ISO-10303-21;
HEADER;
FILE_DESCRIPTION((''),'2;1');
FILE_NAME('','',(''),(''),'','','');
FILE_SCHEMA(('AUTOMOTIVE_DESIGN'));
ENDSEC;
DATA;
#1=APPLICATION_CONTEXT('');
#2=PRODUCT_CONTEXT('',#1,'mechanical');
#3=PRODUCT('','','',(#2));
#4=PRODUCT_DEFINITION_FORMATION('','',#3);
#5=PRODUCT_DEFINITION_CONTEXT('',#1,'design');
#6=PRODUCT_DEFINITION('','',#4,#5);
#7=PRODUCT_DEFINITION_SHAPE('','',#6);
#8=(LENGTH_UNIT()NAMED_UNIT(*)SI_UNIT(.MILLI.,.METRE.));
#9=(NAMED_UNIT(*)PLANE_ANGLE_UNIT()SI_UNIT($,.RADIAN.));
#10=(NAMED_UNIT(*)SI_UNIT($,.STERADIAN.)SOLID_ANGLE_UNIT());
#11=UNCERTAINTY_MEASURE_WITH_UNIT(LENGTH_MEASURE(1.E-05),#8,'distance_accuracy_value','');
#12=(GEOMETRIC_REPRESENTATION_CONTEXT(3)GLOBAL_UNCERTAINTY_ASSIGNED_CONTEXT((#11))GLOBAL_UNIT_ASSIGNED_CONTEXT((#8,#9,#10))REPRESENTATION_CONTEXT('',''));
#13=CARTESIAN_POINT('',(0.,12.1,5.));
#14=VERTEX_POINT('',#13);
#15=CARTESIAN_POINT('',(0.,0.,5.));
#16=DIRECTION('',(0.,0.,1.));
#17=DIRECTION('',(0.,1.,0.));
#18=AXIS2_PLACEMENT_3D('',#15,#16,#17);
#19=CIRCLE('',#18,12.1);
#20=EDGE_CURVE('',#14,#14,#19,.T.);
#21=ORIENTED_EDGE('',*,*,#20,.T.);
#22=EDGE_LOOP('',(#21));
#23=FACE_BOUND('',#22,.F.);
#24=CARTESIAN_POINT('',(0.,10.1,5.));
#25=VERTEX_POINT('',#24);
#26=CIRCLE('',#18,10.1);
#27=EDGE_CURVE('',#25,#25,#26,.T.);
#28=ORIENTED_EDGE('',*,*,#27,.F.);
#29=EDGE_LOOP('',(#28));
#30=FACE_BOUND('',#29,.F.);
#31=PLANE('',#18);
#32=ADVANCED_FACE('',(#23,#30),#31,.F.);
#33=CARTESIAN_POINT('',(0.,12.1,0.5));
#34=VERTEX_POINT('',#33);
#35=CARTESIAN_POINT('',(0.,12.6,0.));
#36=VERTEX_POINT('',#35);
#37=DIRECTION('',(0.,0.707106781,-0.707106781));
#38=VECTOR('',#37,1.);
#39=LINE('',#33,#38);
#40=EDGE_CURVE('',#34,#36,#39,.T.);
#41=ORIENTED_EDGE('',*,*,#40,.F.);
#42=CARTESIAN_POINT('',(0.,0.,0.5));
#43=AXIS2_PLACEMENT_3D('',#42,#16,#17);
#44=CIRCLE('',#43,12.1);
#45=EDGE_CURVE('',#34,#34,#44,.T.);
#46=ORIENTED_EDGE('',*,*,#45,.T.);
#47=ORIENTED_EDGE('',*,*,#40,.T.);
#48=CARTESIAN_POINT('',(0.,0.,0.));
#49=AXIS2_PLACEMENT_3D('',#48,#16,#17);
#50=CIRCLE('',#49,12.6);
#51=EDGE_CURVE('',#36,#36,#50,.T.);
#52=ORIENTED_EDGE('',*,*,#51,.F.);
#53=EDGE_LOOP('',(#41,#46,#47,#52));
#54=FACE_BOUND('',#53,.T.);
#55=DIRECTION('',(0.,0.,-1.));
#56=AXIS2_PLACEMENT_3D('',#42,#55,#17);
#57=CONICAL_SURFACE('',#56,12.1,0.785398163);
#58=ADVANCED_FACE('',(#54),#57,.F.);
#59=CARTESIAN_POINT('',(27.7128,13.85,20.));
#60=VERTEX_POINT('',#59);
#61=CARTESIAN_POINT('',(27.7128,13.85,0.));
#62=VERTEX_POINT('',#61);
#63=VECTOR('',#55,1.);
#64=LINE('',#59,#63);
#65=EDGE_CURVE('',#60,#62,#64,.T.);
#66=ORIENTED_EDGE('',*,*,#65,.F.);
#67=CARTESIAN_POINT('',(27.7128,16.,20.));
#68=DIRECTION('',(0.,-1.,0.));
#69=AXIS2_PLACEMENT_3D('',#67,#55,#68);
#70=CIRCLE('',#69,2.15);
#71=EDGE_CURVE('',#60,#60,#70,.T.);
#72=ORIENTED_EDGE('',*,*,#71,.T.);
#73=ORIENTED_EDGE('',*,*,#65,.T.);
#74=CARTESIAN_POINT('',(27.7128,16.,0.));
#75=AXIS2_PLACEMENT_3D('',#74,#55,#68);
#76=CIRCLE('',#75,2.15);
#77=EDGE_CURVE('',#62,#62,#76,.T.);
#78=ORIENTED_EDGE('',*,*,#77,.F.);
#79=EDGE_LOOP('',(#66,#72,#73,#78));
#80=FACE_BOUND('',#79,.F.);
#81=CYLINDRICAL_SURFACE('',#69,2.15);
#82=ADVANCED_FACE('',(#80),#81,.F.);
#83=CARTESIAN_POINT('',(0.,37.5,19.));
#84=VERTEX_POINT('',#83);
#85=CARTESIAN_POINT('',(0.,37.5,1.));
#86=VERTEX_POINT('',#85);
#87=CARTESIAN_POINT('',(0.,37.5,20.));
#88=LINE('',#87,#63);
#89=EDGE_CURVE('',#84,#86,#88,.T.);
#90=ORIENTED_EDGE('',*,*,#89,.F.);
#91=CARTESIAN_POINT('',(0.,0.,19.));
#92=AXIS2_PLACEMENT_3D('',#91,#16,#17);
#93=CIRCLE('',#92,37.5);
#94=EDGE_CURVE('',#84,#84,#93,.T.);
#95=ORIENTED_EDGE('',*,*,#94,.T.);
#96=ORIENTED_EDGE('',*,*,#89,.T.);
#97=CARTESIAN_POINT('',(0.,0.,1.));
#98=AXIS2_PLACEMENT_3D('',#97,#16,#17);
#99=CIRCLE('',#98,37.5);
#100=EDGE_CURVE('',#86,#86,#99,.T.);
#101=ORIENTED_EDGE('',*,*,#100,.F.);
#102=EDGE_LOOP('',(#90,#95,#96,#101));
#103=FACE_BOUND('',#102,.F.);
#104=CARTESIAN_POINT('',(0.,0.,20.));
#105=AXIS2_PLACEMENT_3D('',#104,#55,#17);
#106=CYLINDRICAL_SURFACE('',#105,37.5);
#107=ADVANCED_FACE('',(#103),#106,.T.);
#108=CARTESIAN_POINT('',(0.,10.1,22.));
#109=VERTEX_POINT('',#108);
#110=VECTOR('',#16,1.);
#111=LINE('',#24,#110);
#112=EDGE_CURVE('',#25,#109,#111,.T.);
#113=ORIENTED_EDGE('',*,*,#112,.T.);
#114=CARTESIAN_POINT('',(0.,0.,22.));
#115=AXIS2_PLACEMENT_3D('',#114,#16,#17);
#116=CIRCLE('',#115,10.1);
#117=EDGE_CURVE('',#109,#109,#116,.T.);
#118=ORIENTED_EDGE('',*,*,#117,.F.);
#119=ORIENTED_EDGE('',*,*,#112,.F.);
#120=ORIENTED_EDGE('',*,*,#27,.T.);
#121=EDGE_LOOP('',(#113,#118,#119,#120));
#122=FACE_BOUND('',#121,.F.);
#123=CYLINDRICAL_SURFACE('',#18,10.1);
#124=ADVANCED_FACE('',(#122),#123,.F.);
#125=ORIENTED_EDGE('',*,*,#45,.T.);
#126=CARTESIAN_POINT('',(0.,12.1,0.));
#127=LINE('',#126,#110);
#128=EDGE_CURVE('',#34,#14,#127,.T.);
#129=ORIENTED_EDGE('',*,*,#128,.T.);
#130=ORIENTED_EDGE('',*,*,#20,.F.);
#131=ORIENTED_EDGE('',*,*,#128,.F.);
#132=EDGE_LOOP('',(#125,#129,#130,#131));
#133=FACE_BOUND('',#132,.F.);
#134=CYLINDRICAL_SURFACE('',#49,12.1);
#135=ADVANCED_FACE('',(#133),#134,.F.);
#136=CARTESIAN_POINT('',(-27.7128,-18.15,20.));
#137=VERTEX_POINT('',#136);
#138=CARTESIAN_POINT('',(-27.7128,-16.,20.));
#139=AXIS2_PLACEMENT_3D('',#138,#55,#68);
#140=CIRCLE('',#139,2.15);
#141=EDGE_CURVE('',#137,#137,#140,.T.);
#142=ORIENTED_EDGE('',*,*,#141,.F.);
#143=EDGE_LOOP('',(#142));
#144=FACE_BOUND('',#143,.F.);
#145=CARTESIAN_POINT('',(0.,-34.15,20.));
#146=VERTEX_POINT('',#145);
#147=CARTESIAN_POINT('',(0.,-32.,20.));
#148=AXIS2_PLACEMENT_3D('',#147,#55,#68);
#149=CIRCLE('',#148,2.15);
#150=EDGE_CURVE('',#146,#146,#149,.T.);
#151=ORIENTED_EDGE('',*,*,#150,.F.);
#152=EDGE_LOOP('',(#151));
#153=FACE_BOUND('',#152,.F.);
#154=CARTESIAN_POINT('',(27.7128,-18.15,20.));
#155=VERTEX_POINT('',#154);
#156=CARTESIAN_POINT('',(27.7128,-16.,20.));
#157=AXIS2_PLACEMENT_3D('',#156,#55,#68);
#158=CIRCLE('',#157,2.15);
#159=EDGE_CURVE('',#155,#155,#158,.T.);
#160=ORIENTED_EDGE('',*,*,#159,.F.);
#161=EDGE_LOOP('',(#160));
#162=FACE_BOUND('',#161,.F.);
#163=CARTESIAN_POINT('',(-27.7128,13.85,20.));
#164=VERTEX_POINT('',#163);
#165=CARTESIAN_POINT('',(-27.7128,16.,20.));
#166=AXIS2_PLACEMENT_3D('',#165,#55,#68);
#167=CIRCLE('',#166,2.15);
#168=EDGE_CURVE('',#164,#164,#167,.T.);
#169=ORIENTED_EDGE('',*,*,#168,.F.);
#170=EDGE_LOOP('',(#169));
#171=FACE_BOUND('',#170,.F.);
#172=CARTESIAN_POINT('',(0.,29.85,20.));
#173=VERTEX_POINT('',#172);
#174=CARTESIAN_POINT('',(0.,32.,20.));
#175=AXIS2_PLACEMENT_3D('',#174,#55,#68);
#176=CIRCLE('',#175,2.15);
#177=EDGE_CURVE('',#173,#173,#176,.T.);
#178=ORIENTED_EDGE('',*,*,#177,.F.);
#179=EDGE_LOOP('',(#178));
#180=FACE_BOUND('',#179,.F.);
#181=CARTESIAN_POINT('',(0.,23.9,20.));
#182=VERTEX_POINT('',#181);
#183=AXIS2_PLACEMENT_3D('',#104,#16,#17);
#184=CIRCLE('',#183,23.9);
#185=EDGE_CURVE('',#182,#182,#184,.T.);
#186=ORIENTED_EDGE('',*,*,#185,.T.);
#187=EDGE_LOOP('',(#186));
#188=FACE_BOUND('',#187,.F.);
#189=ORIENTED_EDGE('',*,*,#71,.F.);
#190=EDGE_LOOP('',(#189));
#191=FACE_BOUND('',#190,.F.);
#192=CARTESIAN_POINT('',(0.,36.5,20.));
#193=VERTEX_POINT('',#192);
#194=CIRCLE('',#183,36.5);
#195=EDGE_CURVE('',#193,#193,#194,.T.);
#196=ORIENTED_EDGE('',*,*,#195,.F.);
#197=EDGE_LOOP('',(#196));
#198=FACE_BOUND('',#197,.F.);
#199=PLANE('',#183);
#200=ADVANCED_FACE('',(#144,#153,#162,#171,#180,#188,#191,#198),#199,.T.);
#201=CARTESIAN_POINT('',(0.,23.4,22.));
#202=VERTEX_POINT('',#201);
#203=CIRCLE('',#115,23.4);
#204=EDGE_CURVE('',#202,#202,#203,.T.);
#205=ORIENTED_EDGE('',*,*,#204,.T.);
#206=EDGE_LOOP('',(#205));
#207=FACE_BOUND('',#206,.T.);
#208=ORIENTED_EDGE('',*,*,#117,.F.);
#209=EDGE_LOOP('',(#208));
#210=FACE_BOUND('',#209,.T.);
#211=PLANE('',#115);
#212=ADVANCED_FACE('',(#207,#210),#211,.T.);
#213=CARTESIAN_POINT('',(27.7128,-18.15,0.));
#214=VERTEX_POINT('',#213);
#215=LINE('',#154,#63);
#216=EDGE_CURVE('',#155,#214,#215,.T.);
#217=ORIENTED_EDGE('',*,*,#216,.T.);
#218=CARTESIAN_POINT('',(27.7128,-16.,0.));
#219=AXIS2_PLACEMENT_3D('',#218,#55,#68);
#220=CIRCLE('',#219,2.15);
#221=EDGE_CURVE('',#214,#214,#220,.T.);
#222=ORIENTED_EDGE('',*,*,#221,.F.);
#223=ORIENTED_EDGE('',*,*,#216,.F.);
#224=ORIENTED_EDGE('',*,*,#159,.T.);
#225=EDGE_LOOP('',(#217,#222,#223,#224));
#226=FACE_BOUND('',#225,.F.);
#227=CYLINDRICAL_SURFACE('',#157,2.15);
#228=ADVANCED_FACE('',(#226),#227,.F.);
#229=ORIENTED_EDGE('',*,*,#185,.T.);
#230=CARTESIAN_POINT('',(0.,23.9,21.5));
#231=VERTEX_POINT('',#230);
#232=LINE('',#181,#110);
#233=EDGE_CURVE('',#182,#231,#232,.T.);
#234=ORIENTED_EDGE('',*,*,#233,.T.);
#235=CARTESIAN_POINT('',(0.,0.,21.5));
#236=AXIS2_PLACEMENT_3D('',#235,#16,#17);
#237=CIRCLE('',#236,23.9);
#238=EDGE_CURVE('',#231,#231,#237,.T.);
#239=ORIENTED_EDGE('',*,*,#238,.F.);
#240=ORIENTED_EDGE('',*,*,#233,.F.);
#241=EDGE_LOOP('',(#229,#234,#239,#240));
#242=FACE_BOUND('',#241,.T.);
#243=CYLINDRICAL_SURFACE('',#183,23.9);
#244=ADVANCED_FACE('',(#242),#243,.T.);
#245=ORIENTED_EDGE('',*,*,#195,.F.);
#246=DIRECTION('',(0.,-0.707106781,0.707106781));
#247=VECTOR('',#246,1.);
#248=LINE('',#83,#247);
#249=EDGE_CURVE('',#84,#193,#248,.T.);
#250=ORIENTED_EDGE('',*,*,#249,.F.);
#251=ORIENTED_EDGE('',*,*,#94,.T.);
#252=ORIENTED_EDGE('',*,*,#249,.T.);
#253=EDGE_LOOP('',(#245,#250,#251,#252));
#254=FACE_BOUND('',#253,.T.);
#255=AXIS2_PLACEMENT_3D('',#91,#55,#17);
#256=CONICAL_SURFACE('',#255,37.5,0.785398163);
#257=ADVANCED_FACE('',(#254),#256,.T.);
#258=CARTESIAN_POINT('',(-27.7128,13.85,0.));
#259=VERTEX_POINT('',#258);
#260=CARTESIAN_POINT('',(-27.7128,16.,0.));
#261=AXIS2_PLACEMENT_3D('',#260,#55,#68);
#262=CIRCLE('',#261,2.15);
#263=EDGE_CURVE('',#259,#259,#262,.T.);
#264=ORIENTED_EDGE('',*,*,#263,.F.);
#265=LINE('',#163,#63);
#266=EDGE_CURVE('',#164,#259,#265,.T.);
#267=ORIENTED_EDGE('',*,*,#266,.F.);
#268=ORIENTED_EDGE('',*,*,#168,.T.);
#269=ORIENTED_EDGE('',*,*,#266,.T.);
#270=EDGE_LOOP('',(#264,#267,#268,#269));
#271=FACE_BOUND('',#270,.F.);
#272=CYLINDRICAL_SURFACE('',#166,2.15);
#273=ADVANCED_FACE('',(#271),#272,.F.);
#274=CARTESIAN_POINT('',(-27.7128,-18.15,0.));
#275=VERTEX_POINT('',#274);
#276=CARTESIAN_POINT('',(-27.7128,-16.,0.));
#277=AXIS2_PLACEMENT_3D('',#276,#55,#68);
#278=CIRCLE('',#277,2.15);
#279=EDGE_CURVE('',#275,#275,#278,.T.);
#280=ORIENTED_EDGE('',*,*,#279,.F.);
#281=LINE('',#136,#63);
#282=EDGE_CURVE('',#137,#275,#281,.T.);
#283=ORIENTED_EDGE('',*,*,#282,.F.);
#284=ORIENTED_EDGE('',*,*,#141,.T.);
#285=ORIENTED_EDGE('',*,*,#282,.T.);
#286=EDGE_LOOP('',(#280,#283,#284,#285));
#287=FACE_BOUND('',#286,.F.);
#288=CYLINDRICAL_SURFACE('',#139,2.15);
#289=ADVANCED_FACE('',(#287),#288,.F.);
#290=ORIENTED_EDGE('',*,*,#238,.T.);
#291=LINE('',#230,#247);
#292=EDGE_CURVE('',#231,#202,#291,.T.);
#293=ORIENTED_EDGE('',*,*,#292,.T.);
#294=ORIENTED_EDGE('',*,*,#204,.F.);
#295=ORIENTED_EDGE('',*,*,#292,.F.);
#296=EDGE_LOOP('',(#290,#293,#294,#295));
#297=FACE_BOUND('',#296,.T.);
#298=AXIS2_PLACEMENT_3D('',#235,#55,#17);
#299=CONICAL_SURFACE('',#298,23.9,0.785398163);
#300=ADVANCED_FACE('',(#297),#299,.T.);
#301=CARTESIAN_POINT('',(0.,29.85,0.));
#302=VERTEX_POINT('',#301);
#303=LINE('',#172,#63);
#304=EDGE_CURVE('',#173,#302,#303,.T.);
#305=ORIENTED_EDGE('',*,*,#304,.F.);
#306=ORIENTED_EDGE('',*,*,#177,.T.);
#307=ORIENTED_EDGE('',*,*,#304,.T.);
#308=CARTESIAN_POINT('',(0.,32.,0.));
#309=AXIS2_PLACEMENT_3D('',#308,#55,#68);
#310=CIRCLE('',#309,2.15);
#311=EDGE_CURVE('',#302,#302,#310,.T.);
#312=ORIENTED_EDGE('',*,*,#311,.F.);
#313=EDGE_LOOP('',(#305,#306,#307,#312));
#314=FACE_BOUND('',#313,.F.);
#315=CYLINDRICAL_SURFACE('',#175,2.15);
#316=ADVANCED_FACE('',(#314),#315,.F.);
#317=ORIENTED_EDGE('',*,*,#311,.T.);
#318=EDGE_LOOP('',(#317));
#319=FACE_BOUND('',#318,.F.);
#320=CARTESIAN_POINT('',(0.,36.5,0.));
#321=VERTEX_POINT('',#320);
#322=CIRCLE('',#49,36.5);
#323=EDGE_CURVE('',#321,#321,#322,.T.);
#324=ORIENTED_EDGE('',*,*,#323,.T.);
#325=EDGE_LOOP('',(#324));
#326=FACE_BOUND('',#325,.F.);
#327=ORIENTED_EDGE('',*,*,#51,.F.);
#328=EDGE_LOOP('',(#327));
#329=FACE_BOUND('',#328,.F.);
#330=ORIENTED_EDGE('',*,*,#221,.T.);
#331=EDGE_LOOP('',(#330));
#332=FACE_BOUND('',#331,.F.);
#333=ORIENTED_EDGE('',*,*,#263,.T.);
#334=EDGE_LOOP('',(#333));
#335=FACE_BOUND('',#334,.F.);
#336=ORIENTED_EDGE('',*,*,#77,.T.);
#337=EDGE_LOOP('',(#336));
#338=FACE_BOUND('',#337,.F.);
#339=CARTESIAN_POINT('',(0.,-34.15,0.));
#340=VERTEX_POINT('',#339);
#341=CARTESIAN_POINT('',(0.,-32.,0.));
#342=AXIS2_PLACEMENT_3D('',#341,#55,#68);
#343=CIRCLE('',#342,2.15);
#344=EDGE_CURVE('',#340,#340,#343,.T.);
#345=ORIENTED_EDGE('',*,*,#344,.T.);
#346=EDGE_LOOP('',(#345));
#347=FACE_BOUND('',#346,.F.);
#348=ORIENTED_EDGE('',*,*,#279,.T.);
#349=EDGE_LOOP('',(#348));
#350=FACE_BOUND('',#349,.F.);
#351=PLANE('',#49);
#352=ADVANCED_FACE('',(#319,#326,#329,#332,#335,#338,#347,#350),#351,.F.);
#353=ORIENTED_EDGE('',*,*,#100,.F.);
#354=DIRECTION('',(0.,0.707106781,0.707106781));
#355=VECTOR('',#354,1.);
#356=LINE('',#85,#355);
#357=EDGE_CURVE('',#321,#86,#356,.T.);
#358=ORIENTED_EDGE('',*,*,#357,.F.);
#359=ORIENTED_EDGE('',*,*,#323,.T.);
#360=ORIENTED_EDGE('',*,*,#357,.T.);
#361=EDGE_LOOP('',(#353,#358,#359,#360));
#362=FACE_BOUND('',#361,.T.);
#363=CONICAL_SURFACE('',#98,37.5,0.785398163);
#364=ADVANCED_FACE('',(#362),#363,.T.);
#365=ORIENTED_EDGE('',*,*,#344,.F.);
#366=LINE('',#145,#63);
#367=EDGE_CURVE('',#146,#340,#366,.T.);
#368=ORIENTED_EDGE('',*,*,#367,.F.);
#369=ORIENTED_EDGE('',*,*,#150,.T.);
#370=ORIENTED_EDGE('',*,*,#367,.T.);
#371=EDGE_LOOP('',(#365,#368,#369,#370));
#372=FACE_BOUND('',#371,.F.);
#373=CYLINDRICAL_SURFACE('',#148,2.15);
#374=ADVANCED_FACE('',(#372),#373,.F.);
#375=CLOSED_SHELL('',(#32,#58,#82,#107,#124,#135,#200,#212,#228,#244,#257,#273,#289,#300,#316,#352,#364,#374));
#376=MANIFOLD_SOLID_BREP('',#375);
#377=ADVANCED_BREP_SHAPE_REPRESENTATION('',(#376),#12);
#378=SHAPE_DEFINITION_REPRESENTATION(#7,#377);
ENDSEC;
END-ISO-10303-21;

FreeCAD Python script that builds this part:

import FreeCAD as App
import Part
import Sketcher
from FreeCAD import Vector


def edges_at(feature, points):
    """Names of the edges that pass closest to the given points."""
    edges = feature.Shape.Edges
    near = lambda p: min(range(len(edges)), key=lambda i: edges[i].distToShape(Part.Vertex(*p))[0])
    return sorted({f"Edge{near(p) + 1}" for p in points})

doc = App.newDocument("Part")
body = doc.addObject("PartDesign::Body", "Body")

# Sketch on YZ plane
sketch1 = body.newObject("Sketcher::SketchObject", "Sketch")
sketch1.AttachmentSupport = (doc.getObject("YZ_Plane"), [""])
sketch1.MapMode = "FlatFace"
sketch1.addGeometry([
    Part.LineSegment(Vector(12.1, 5, 0), Vector(12.1, 0, 0)),  # 0
    Part.LineSegment(Vector(12.1, 0, 0), Vector(37.5, 0, 0)),  # 1
    Part.LineSegment(Vector(37.5, 0, 0), Vector(37.5, 20, 0)),  # 2
    Part.LineSegment(Vector(37.5, 20, 0), Vector(23.9, 20, 0)),  # 3
    Part.LineSegment(Vector(23.9, 20, 0), Vector(23.9, 22, 0)),  # 4
    Part.LineSegment(Vector(23.9, 22, 0), Vector(10.1, 22, 0)),  # 5
    Part.LineSegment(Vector(10.1, 22, 0), Vector(10.1, 5, 0)),  # 6
    Part.LineSegment(Vector(10.1, 5, 0), Vector(12.1, 5, 0)),  # 7
], False)
sketch1.addConstraint([
    Sketcher.Constraint("Coincident", 0, 2, 1, 1),
    Sketcher.Constraint("Coincident", 1, 2, 2, 1),
    Sketcher.Constraint("Coincident", 2, 2, 3, 1),
    Sketcher.Constraint("Coincident", 3, 2, 4, 1),
    Sketcher.Constraint("Coincident", 4, 2, 5, 1),
    Sketcher.Constraint("Coincident", 5, 2, 6, 1),
    Sketcher.Constraint("Coincident", 6, 2, 7, 1),
    Sketcher.Constraint("Coincident", 7, 2, 0, 1),
    Sketcher.Constraint("Vertical", 0),
    Sketcher.Constraint("Horizontal", 1),
    Sketcher.Constraint("Vertical", 2),
    Sketcher.Constraint("Horizontal", 3),
    Sketcher.Constraint("Vertical", 4),
    Sketcher.Constraint("Horizontal", 5),
    Sketcher.Constraint("Vertical", 6),
    Sketcher.Constraint("Horizontal", 7),
    Sketcher.Constraint("PointOnObject", 0, 2, -1),
    Sketcher.Constraint("Equal", 7, 4),
    Sketcher.Constraint("DistanceX", 7, 1, 7, 2, 2.0),
    Sketcher.Constraint("DistanceY", 0, 2, 0, 1, 5.0),
    Sketcher.Constraint("DistanceY", 2, 1, 2, 2, 20.0),
    Sketcher.Constraint("DistanceX", -1, 1, 0, 2, 12.1),
    Sketcher.Constraint("DistanceX", -1, 1, 1, 2, 37.5),
    Sketcher.Constraint("DistanceX", -1, 1, 3, 2, 23.9),
])
revolution = body.newObject("PartDesign::Revolution", "Revolution")
revolution.Profile = sketch1
revolution.ReferenceAxis = (sketch1, ["V_Axis"])
revolution.Angle = 360
doc.recompute()

chamfer = body.newObject("PartDesign::Chamfer", "Chamfer")
chamfer.Base = (revolution, edges_at(revolution, [(0, -12.1, 0)]))
chamfer.Size = 0.5

# Sketch on XY plane
sketch2 = body.newObject("Sketcher::SketchObject", "Sketch001")
sketch2.AttachmentSupport = (doc.getObject("XY_Plane"), [""])
sketch2.MapMode = "FlatFace"
sketch2.AttachmentOffset = App.Placement(Vector(0, 0, 20), App.Rotation())
sketch2.addGeometry([
    Part.Circle(Vector(0, 32, 0), Vector(0, 0, 1), 2.15),  # 0
    Part.Circle(Vector(-27.7128, 16, 0), Vector(0, 0, 1), 2.15),  # 1
    Part.Circle(Vector(-27.7128, -16, 0), Vector(0, 0, 1), 2.15),  # 2
    Part.Circle(Vector(0, -32, 0), Vector(0, 0, 1), 2.15),  # 3
    Part.Circle(Vector(27.7128, -16, 0), Vector(0, 0, 1), 2.15),  # 4
    Part.Circle(Vector(27.7128, 16, 0), Vector(0, 0, 1), 2.15),  # 5
], False)
sketch2.addConstraint([
    Sketcher.Constraint("Equal", 0, 1),
    Sketcher.Constraint("Equal", 1, 2),
    Sketcher.Constraint("Equal", 2, 3),
    Sketcher.Constraint("Equal", 3, 4),
    Sketcher.Constraint("Equal", 4, 5),
    Sketcher.Constraint("Symmetric", 0, 3, 3, 3, -1, 1),
    Sketcher.Constraint("Symmetric", 1, 3, 4, 3, -1, 1),
    Sketcher.Constraint("Symmetric", 2, 3, 5, 3, -1, 1),
    Sketcher.Constraint("Symmetric", 2, 3, 4, 3, -2),
    Sketcher.Constraint("PointOnObject", 0, 3, -2),
    Sketcher.Constraint("Diameter", 0, 4.3),
    Sketcher.Constraint("DistanceY", -1, 1, 0, 3, 32.0),
    Sketcher.Constraint("DistanceY", -1, 1, 1, 3, 16.0),
    Sketcher.Constraint("DistanceX", 1, 3, -1, 1, 27.7128),
])
doc.recompute()
hole = body.newObject("PartDesign::Hole", "Hole")
hole.Profile = sketch2
hole.ThreadType = "None"
hole.Diameter = 4.3
hole.DepthType = "ThroughAll"
doc.recompute()

chamfer2 = body.newObject("PartDesign::Chamfer", "Chamfer001")
chamfer2.Base = (hole, edges_at(hole, [(0, -37.5, 0), (0, -37.5, 20)]))
chamfer2.Size = 1
doc.recompute()

chamfer3 = body.newObject("PartDesign::Chamfer", "Chamfer002")
chamfer3.Base = (chamfer2, edges_at(chamfer2, [(0, -23.9, 22)]))
chamfer3.Size = 0.5

doc.recompute()
